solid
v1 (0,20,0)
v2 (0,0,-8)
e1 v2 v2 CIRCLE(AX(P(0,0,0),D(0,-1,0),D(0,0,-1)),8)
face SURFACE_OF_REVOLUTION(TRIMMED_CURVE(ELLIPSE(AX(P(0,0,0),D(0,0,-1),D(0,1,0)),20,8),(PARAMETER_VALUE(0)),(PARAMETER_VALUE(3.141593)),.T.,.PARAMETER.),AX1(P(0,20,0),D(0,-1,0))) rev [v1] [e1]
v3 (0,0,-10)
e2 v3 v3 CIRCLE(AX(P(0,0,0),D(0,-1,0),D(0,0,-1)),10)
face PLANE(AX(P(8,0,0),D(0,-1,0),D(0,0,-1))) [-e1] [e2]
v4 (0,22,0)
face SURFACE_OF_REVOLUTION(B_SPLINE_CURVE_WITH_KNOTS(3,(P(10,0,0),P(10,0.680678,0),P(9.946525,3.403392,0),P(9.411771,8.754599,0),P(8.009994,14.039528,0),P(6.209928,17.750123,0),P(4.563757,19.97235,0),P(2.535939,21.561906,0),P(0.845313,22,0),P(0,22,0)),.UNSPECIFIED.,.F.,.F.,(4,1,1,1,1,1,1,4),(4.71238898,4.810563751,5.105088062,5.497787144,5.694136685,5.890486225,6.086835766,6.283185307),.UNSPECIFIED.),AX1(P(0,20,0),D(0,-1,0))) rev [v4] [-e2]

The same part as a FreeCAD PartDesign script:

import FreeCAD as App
import Part
import Sketcher

doc = App.newDocument("Part")
body = doc.addObject("PartDesign::Body", "Body")

# Sketch on XY plane
sketch1 = body.newObject("Sketcher::SketchObject", "Sketch")
sketch1.AttachmentSupport = (doc.getObject("XY_Plane"), [""])
sketch1.MapMode = "FlatFace"
sketch1.addGeometry([
    Part.LineSegment(App.Vector(0, 22, 0), App.Vector(0, 20, 0)),
    Part.BSplineCurve([App.Vector(8, 0, 0), App.Vector(8, 20, 0), App.Vector(0, 20, 0)], [3, 3], [4.71238898, 6.283185307], False, 2, [1, 0.707106781, 1], False),
    Part.LineSegment(App.Vector(8, 0, 0), App.Vector(10, 0, 0)),
    Part.BSplineCurve([App.Vector(10, 0, 0), App.Vector(10, 0.680678, 0), App.Vector(9.946525, 3.403392, 0), App.Vector(9.411771, 8.754599, 0), App.Vector(8.009994, 14.039528, 0), App.Vector(6.209928, 17.750123, 0), App.Vector(4.563757, 19.97235, 0), App.Vector(2.535939, 21.561906, 0), App.Vector(0.845313, 22, 0), App.Vector(0, 22, 0)], [4, 1, 1, 1, 1, 1, 1, 4], [4.71238898, 4.810563751, 5.105088062, 5.497787144, 5.694136685, 5.890486225, 6.086835766, 6.283185307], False, 3, [1, 1, 1, 1, 1, 1, 1, 1, 1, 1], False),
], False)
sketch1.addConstraint([
    Sketcher.Constraint("Block", 1),
    Sketcher.Constraint("Block", 3),
    Sketcher.Constraint("Coincident", 0, 2, 1, 2),
    Sketcher.Constraint("Coincident", 1, 1, 2, 1),
    Sketcher.Constraint("Coincident", 2, 2, 3, 1),
    Sketcher.Constraint("Coincident", 3, 2, 0, 1),
])
revolution = body.newObject("PartDesign::Revolution", "Revolution")
revolution.Profile = sketch1
revolution.ReferenceAxis = (sketch1, ["V_Axis"])
revolution.Angle = 360

doc.recompute()
